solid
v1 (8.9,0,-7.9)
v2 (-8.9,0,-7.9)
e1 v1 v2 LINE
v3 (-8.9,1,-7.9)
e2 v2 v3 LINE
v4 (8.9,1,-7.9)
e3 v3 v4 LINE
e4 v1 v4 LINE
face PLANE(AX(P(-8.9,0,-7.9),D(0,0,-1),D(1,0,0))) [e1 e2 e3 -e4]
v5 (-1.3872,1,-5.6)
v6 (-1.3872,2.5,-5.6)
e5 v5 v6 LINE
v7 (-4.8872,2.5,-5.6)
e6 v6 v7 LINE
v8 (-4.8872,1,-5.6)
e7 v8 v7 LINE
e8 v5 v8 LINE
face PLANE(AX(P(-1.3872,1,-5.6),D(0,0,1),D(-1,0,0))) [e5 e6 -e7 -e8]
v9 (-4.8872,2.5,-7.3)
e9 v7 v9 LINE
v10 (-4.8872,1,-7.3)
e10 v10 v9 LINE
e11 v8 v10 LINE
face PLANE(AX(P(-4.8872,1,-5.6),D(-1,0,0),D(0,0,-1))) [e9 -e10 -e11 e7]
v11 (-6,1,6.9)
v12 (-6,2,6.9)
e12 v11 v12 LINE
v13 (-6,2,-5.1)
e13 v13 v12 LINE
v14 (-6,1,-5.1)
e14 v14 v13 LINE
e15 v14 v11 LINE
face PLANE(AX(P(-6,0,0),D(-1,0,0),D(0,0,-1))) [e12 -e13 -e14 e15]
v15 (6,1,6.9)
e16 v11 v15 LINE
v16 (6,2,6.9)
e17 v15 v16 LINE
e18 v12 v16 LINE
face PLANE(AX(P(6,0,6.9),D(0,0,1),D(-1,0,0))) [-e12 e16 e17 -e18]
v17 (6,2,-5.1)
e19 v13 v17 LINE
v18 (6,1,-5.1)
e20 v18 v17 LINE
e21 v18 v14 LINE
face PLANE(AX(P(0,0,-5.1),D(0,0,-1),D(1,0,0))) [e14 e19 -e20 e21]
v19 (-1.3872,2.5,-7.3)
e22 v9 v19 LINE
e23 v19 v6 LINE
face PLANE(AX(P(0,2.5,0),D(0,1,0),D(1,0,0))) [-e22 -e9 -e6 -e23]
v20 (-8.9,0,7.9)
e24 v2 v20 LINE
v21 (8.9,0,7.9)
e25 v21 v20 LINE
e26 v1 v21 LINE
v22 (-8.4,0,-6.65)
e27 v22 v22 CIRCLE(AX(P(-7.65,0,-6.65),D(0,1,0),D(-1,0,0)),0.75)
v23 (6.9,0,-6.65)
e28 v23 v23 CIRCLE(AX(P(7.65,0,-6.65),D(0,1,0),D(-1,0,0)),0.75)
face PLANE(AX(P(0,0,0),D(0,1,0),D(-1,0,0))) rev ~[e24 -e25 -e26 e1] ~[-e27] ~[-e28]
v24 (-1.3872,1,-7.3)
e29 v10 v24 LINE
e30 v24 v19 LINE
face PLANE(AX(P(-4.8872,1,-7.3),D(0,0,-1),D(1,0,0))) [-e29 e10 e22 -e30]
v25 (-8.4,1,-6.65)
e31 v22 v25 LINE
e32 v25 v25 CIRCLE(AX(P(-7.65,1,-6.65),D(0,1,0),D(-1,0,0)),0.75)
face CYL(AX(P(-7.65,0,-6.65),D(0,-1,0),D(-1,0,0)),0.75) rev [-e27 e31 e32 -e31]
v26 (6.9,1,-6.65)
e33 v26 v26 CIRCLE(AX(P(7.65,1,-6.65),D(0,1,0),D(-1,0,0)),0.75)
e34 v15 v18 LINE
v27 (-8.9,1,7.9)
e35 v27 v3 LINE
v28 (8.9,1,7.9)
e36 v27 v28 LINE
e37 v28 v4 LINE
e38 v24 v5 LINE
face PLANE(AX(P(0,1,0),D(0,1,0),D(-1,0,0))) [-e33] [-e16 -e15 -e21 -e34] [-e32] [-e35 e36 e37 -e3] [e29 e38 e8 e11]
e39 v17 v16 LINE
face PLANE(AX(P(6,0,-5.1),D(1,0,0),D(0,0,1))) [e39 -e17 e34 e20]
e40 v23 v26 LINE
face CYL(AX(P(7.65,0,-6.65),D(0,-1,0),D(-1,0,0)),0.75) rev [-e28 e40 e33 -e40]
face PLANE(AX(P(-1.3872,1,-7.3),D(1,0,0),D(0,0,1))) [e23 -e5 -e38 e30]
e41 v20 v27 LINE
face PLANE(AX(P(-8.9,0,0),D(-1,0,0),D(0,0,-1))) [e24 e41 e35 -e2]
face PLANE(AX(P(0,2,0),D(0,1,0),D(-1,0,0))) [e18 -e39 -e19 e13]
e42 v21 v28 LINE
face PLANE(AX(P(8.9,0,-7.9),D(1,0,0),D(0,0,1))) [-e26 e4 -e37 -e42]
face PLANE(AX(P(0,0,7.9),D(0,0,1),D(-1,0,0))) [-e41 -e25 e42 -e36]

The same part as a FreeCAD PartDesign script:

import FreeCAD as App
import Part
import Sketcher

V = App.Vector
Q = App.Units.Quantity

doc = App.newDocument("Part")
body = doc.addObject("PartDesign::Body", "Body")

# Sketch on XZ plane
sketch1 = body.newObject("Sketcher::SketchObject", "Sketch")
sketch1.AttachmentSupport = (doc.getObject("XZ_Plane"), [""])
sketch1.MapMode = "FlatFace"
sketch1.addGeometry([
    Part.LineSegment(V(-9, -8, 0), V(-9, 8, 0)),
    Part.LineSegment(V(-9, 8, 0), V(9, 8, 0)),
    Part.LineSegment(V(9, 8, 0), V(9, -8, 0)),
    Part.LineSegment(V(9, -8, 0), V(-9, -8, 0)),
], False)
sketch1.addConstraint([
    Sketcher.Constraint("Coincident", 0, 2, 1, 1),
    Sketcher.Constraint("Coincident", 1, 2, 2, 1),
    Sketcher.Constraint("Coincident", 2, 2, 3, 1),
    Sketcher.Constraint("Coincident", 3, 2, 0, 1),
    Sketcher.Constraint("Vertical", 0),
    Sketcher.Constraint("Horizontal", 1),
    Sketcher.Constraint("Vertical", 2),
    Sketcher.Constraint("Horizontal", 3),
    Sketcher.Constraint("Symmetric", 0, 2, 2, 2, -1, 1),
    Sketcher.Constraint("DistanceX", 1, 1, 1, 2, Q("17.8 mm")),
    Sketcher.Constraint("DistanceY", 0, 1, 0, 2, Q("15.8 mm")),
])
pad1 = body.newObject("PartDesign::Pad", "Pad")
pad1.Profile = sketch1
pad1.Length = 1
pad1.Reversed = True

# Sketch on XZ plane
sketch2 = body.newObject("Sketcher::SketchObject", "Sketch001")
sketch2.AttachmentSupport = (doc.getObject("XZ_Plane"), [""])
sketch2.MapMode = "FlatFace"
sketch2.addGeometry([
    Part.LineSegment(V(6, -5, 0), V(-6, -5, 0)),
    Part.LineSegment(V(-6, -5, 0), V(-6, 7, 0)),
    Part.LineSegment(V(-6, 7, 0), V(6, 7, 0)),
    Part.LineSegment(V(6, 7, 0), V(6, -5, 0)),
], False)
sketch2.addConstraint([
    Sketcher.Constraint("Coincident", 0, 2, 1, 1),
    Sketcher.Constraint("Coincident", 1, 2, 2, 1),
    Sketcher.Constraint("Coincident", 2, 2, 3, 1),
    Sketcher.Constraint("Coincident", 3, 2, 0, 1),
    Sketcher.Constraint("Horizontal", 0),
    Sketcher.Constraint("Vertical", 1),
    Sketcher.Constraint("Horizontal", 2),
    Sketcher.Constraint("Vertical", 3),
    Sketcher.Constraint("Equal", 2, 1),
    Sketcher.Constraint("DistanceX", 0, 2, 0, 1, Q("12 mm")),
    Sketcher.Constraint("DistanceX", 0, 2, -1, 1, Q("6 mm")),
    Sketcher.Constraint("DistanceY", 0, 2, -1, 1, Q("5.1 mm")),
])
pad2 = body.newObject("PartDesign::Pad", "Pad001")
pad2.Profile = sketch2
pad2.Length = 2
pad2.Reversed = True

# Sketch on XZ plane
sketch3 = body.newObject("Sketcher::SketchObject", "Sketch002")
sketch3.AttachmentSupport = (doc.getObject("XZ_Plane"), [""])
sketch3.MapMode = "FlatFace"
sketch3.AttachmentOffset = App.Placement(V(0, 0, -1), App.Rotation())
sketch3.addGeometry([
    Part.LineSegment(V(-1.4, -7.3, 0), V(-4.9, -7.3, 0)),
    Part.LineSegment(V(-4.9, -7.3, 0), V(-4.9, -5.6, 0)),
    Part.LineSegment(V(-4.9, -5.6, 0), V(-1.4, -5.6, 0)),
    Part.LineSegment(V(-1.4, -5.6, 0), V(-1.4, -7.3, 0)),
], False)
sketch3.addConstraint([
    Sketcher.Constraint("Coincident", 0, 2, 1, 1),
    Sketcher.Constraint("Coincident", 1, 2, 2, 1),
    Sketcher.Constraint("Coincident", 2, 2, 3, 1),
    Sketcher.Constraint("Coincident", 3, 2, 0, 1),
    Sketcher.Constraint("Horizontal", 0),
    Sketcher.Constraint("Vertical", 1),
    Sketcher.Constraint("Horizontal", 2),
    Sketcher.Constraint("Vertical", 3),
    Sketcher.Constraint("DistanceX", 0, 2, 0, 1, Q("3.5 mm")),
    Sketcher.Constraint("DistanceY", 1, 1, 1, 2, Q("1.7 mm")),
    Sketcher.Constraint("DistanceY", 0, 2, -1, 1, Q("7.3 mm")),
    Sketcher.Constraint("DistanceX", 0, 2, -1, 1, Q("4.8872 mm")),
])
pad3 = body.newObject("PartDesign::Pad", "Pad002")
pad3.Profile = sketch3
pad3.Length = 1.5
pad3.Reversed = True

# Sketch on XZ plane
sketch4 = body.newObject("Sketcher::SketchObject", "Sketch003")
sketch4.AttachmentSupport = (doc.getObject("XZ_Plane"), [""])
sketch4.MapMode = "FlatFace"
sketch4.addGeometry([
    Part.Circle(V(-7.7, -6.7, 0), V(0, 0, 1), 0.8),
    Part.Circle(V(7.7, -6.7, 0), V(0, 0, 1), 0.8),
], False)
sketch4.addConstraint([
    Sketcher.Constraint("Equal", 0, 1),
    Sketcher.Constraint("Symmetric", 0, 3, 1, 3, -2),
    Sketcher.Constraint("Diameter", 0, Q("1.5 mm")),
    Sketcher.Constraint("DistanceX", 0, 3, 1, 3, Q("15.3 mm")),
    Sketcher.Constraint("DistanceY", 0, 3, -1, 1, Q("6.65 mm")),
])
pocket1 = body.newObject("PartDesign::Pocket", "Pocket")
pocket1.Profile = sketch4
pocket1.Length = 1

doc.recompute()
